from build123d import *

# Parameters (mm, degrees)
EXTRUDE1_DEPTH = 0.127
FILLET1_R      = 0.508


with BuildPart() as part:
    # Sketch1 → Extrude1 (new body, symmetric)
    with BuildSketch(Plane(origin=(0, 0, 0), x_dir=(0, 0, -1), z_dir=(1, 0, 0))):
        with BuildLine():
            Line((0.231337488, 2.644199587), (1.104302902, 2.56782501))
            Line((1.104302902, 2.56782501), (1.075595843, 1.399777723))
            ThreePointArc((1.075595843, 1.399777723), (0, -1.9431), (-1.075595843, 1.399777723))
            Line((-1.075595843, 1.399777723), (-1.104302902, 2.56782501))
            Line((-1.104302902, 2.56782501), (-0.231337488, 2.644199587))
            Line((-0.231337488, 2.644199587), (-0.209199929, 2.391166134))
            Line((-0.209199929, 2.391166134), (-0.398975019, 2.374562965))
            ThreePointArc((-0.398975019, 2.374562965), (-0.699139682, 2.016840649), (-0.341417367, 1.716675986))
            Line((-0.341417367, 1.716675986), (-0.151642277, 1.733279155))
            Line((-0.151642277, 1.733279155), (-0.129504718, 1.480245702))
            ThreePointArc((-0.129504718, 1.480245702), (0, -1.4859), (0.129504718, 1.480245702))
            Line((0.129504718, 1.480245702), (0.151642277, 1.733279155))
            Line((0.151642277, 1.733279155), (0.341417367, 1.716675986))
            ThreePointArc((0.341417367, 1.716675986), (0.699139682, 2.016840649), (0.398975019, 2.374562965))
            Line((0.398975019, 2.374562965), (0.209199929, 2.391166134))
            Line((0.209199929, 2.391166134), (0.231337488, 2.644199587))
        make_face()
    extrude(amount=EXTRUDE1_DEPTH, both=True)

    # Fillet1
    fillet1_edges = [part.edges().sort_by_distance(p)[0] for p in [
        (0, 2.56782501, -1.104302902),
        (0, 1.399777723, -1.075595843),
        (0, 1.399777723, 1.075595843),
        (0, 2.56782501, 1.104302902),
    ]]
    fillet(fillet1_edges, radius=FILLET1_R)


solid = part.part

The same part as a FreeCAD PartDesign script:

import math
import FreeCAD as App
import Part
import Sketcher
Q = App.Units.Quantity


def edges_at(feature, points):
    """Names of the edges that pass closest to the given points."""
    edges = feature.Shape.Edges
    near = lambda p: min(range(len(edges)), key=lambda i: edges[i].distToShape(Part.Vertex(*p))[0])
    return sorted({f"Edge{near(p) + 1}" for p in points})

doc = App.newDocument("Part")
body = doc.addObject("PartDesign::Body", "Body")

sketch1 = body.newObject("Sketcher::SketchObject", "Sketch")
sketch1.AttachmentSupport = (doc.getObject("YZ_Plane"), [""])
sketch1.MapMode = "FlatFace"
sketch1.addGeometry(Part.LineSegment(App.Vector(2.57, -1.1, 0), App.Vector(2.64, -0.23, 0)), False)
sketch1.addGeometry(Part.LineSegment(App.Vector(2.64, -0.23, 0), App.Vector(2.39, -0.21, 0)), False)
sketch1.addGeometry(Part.LineSegment(App.Vector(2.39, -0.21, 0), App.Vector(2.37, -0.4, 0)), False)
sketch1.addGeometry(Part.ArcOfCircle(Part.Circle(App.Vector(2.05, -0.37, 0), App.Vector(0, 0, 1), 0.33), math.radians(175), math.radians(355)), False)
sketch1.addGeometry(Part.LineSegment(App.Vector(1.72, -0.34, 0), App.Vector(1.73, -0.15, 0)), False)
sketch1.addGeometry(Part.LineSegment(App.Vector(1.73, -0.15, 0), App.Vector(1.48, -0.13, 0)), False)
sketch1.addGeometry(Part.ArcOfCircle(Part.Circle(App.Vector(0, 0, 0), App.Vector(0, 0, 1), 1.49), math.radians(5), math.radians(355)), False)
sketch1.addGeometry(Part.LineSegment(App.Vector(1.48, 0.13, 0), App.Vector(1.73, 0.15, 0)), False)
sketch1.addGeometry(Part.LineSegment(App.Vector(1.73, 0.15, 0), App.Vector(1.72, 0.34, 0)), False)
sketch1.addGeometry(Part.ArcOfCircle(Part.Circle(App.Vector(2.05, 0.37, 0), App.Vector(0, 0, 1), 0.33), math.radians(5), math.radians(185)), False)
sketch1.addGeometry(Part.LineSegment(App.Vector(2.37, 0.4, 0), App.Vector(2.39, 0.21, 0)), False)
sketch1.addGeometry(Part.LineSegment(App.Vector(2.39, 0.21, 0), App.Vector(2.64, 0.23, 0)), False)
sketch1.addGeometry(Part.LineSegment(App.Vector(2.64, 0.23, 0), App.Vector(2.57, 1.1, 0)), False)
sketch1.addGeometry(Part.LineSegment(App.Vector(2.57, 1.1, 0), App.Vector(1.4, 1.08, 0)), False)
sketch1.addGeometry(Part.ArcOfCircle(Part.Circle(App.Vector(-0.1, 0, 0), App.Vector(0, 0, 1), 1.84), math.radians(36), math.radians(324)), False)
sketch1.addGeometry(Part.LineSegment(App.Vector(1.4, -1.08, 0), App.Vector(2.57, -1.1, 0)), False)
sketch1.addConstraint(Sketcher.Constraint("Coincident", 0, 2, 1, 1))
sketch1.addConstraint(Sketcher.Constraint("Coincident", 1, 2, 2, 1))
sketch1.addConstraint(Sketcher.Constraint("Tangent", 2, 2, 3, 2))
sketch1.addConstraint(Sketcher.Constraint("Tangent", 3, 1, 4, 1))
sketch1.addConstraint(Sketcher.Constraint("Coincident", 4, 2, 5, 1))
sketch1.addConstraint(Sketcher.Constraint("Coincident", 5, 2, 6, 2))
sketch1.addConstraint(Sketcher.Constraint("Coincident", 6, 1, 7, 1))
sketch1.addConstraint(Sketcher.Constraint("Coincident", 7, 2, 8, 1))
sketch1.addConstraint(Sketcher.Constraint("Tangent", 8, 2, 9, 2))
sketch1.addConstraint(Sketcher.Constraint("Tangent", 9, 1, 10, 1))
sketch1.addConstraint(Sketcher.Constraint("Coincident", 10, 2, 11, 1))
sketch1.addConstraint(Sketcher.Constraint("Coincident", 11, 2, 12, 1))
sketch1.addConstraint(Sketcher.Constraint("Coincident", 12, 2, 13, 1))
sketch1.addConstraint(Sketcher.Constraint("Coincident", 13, 2, 14, 1))
sketch1.addConstraint(Sketcher.Constraint("Coincident", 14, 2, 15, 1))
sketch1.addConstraint(Sketcher.Constraint("Coincident", 15, 2, 0, 1))
sketch1.addConstraint(Sketcher.Constraint("Coincident", 6, 3, -1, 1))
sketch1.addConstraint(Sketcher.Constraint("Equal", 3, 9))
sketch1.addConstraint(Sketcher.Constraint("Symmetric", 3, 3, 9, 3, -1))
sketch1.addConstraint(Sketcher.Constraint("Symmetric", 4, 2, 7, 2, -1))
sketch1.addConstraint(Sketcher.Constraint("Symmetric", 1, 2, 10, 2, -1))
sketch1.addConstraint(Sketcher.Constraint("Symmetric", 0, 2, 11, 2, -1))
sketch1.addConstraint(Sketcher.Constraint("Symmetric", 13, 2, 14, 2, -1))
sketch1.addConstraint(Sketcher.Constraint("Symmetric", 12, 2, 15, 2, -1))
sketch1.addConstraint(Sketcher.Constraint("Perpendicular", 0, 1))
sketch1.addConstraint(Sketcher.Constraint("Perpendicular", 1, 2))
sketch1.addConstraint(Sketcher.Constraint("Parallel", 2, 4))
sketch1.addConstraint(Sketcher.Constraint("Perpendicular", 4, 5))
sketch1.addConstraint(Sketcher.Constraint("Perpendicular", 7, 8))
sketch1.addConstraint(Sketcher.Constraint("Equal", 2, 4))
sketch1.addConstraint(Sketcher.Constraint("Equal", 1, 5))
sketch1.addConstraint(Sketcher.Constraint("Angle", 0, Q("85 deg")))
sketch1.addConstraint(Sketcher.Constraint("Radius", 3, Q("0.013 in")))
sketch1.addConstraint(Sketcher.Constraint("Radius", 6, Q("0.0585 in")))
sketch1.addConstraint(Sketcher.Constraint("Distance", 1, Q("0.01 in")))
sketch1.addConstraint(Sketcher.Constraint("Distance", 13, Q("0.046 in")))
sketch1.addConstraint(Sketcher.Constraint("Radius", 14, 1.844479))
sketch1.addConstraint(Sketcher.Constraint("Distance", 0, Q("0.0345 in")))
sketch1.addConstraint(Sketcher.Constraint("Distance", 2, Q("0.0075 in")))
sketch1.addConstraint(Sketcher.Constraint("DistanceX", -1, 1, 0, 2, 2.6442))
sketch1.addConstraint(Sketcher.Constraint("DistanceX", 13, 2, 8, 2, 0.316898))
pad1 = body.newObject("PartDesign::Pad", "Pad")
pad1.Profile = sketch1
pad1.Length = Q("0.01 in")
pad1.Midplane = True
doc.recompute()

fillet = body.newObject("PartDesign::Fillet", "Fillet")
fillet.Base = (pad1, edges_at(pad1, [
    (0, 2.568, -1.104),
    (0, 1.4, -1.076),
    (0, 1.4, 1.076),
    (0, 2.568, 1.104),
]))
fillet.Radius = Q("0.02 in")

doc.recompute()
